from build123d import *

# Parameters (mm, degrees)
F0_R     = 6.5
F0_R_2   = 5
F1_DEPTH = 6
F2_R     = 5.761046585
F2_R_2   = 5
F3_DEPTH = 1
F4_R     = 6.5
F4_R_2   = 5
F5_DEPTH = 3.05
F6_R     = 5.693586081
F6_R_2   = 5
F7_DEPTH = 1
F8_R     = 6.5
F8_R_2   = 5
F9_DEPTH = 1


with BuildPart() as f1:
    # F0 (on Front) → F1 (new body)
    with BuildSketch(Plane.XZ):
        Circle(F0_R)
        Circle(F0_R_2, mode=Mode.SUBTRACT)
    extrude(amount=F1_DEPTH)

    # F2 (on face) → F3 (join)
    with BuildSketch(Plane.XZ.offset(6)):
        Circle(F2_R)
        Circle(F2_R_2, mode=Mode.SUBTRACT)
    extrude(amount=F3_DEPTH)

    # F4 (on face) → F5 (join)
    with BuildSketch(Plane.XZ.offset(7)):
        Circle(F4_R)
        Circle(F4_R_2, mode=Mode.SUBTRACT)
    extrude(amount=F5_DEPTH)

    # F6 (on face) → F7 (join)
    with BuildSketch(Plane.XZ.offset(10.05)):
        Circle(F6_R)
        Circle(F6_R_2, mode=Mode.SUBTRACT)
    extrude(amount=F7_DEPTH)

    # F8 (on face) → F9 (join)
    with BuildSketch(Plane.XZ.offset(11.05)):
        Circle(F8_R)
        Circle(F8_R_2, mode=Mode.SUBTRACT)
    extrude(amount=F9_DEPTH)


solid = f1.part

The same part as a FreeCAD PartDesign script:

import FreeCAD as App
import Part
import Sketcher

V = App.Vector

doc = App.newDocument("Part")
body = doc.addObject("PartDesign::Body", "Body")

# Sketch on XZ plane
sketch1 = doc.addObject("Sketcher::SketchObject", "Sketch")
body.addObject(sketch1)
sketch1.AttachmentSupport = (doc.XZ_Plane, [""])
sketch1.MapMode = "FlatFace"
sketch1.addGeometry([
    Part.Circle(V(0, 0, 0), V(0, 0, 1), 6),
    Part.Circle(V(0, 0, 0), V(0, 0, 1), 5),
], False)
sketch1.addConstraint([
    Sketcher.Constraint("Coincident", 0, 3, -1, 1),
    Sketcher.Constraint("Coincident", 1, 3, -1, 1),
    Sketcher.Constraint("Diameter", 0, 13.0),
    Sketcher.Constraint("Diameter", 1, 10.0),
])
pad1 = doc.addObject("PartDesign::Pad", "Pad")
body.addObject(pad1)
pad1.Profile = sketch1
pad1.Length = 6

# Sketch on XZ plane
sketch2 = doc.addObject("Sketcher::SketchObject", "Sketch001")
body.addObject(sketch2)
sketch2.AttachmentSupport = (doc.XZ_Plane, [""])
sketch2.MapMode = "FlatFace"
sketch2.AttachmentOffset = App.Placement(V(0, 0, 6), App.Rotation())
sketch2.addGeometry([
    Part.Circle(V(0, 0, 0), V(0, 0, 1), 6),
    Part.Circle(V(0, 0, 0), V(0, 0, 1), 5),
], False)
sketch2.addConstraint([
    Sketcher.Constraint("Coincident", 0, 3, -1, 1),
    Sketcher.Constraint("Coincident", 1, 3, -1, 1),
    Sketcher.Constraint("Diameter", 1, 10.0),
    Sketcher.Constraint("Diameter", 0, 11.522093),
])
pad2 = doc.addObject("PartDesign::Pad", "Pad001")
body.addObject(pad2)
pad2.Profile = sketch2
pad2.Length = 1

# Sketch on XZ plane
sketch3 = doc.addObject("Sketcher::SketchObject", "Sketch002")
body.addObject(sketch3)
sketch3.AttachmentSupport = (doc.XZ_Plane, [""])
sketch3.MapMode = "FlatFace"
sketch3.AttachmentOffset = App.Placement(V(0, 0, 7), App.Rotation())
sketch3.addGeometry([
    Part.Circle(V(0, 0, 0), V(0, 0, 1), 6),
    Part.Circle(V(0, 0, 0), V(0, 0, 1), 5),
], False)
sketch3.addConstraint([
    Sketcher.Constraint("Coincident", 0, 3, -1, 1),
    Sketcher.Constraint("Coincident", 1, 3, -1, 1),
    Sketcher.Constraint("Diameter", 0, 13.0),
    Sketcher.Constraint("Diameter", 1, 10.0),
])
pad3 = doc.addObject("PartDesign::Pad", "Pad002")
body.addObject(pad3)
pad3.Profile = sketch3
pad3.Length = 3.05

# Sketch on XZ plane
sketch4 = doc.addObject("Sketcher::SketchObject", "Sketch003")
body.addObject(sketch4)
sketch4.AttachmentSupport = (doc.XZ_Plane, [""])
sketch4.MapMode = "FlatFace"
sketch4.AttachmentOffset = App.Placement(V(0, 0, 10.05), App.Rotation())
sketch4.addGeometry([
    Part.Circle(V(0, 0, 0), V(0, 0, 1), 6),
    Part.Circle(V(0, 0, 0), V(0, 0, 1), 5),
], False)
sketch4.addConstraint([
    Sketcher.Constraint("Coincident", 0, 3, -1, 1),
    Sketcher.Constraint("Coincident", 1, 3, -1, 1),
    Sketcher.Constraint("Diameter", 1, 10.0),
    Sketcher.Constraint("Diameter", 0, 11.387172),
])
pad4 = doc.addObject("PartDesign::Pad", "Pad003")
body.addObject(pad4)
pad4.Profile = sketch4
pad4.Length = 1

# Sketch on XZ plane
sketch5 = doc.addObject("Sketcher::SketchObject", "Sketch004")
body.addObject(sketch5)
sketch5.AttachmentSupport = (doc.XZ_Plane, [""])
sketch5.MapMode = "FlatFace"
sketch5.AttachmentOffset = App.Placement(V(0, 0, 11.05), App.Rotation())
sketch5.addGeometry([
    Part.Circle(V(0, 0, 0), V(0, 0, 1), 6),
    Part.Circle(V(0, 0, 0), V(0, 0, 1), 5),
], False)
sketch5.addConstraint([
    Sketcher.Constraint("Coincident", 0, 3, -1, 1),
    Sketcher.Constraint("Coincident", 1, 3, -1, 1),
    Sketcher.Constraint("Diameter", 0, 13.0),
    Sketcher.Constraint("Diameter", 1, 10.0),
])
pad5 = doc.addObject("PartDesign::Pad", "Pad004")
body.addObject(pad5)
pad5.Profile = sketch5
pad5.Length = 1

doc.recompute()
